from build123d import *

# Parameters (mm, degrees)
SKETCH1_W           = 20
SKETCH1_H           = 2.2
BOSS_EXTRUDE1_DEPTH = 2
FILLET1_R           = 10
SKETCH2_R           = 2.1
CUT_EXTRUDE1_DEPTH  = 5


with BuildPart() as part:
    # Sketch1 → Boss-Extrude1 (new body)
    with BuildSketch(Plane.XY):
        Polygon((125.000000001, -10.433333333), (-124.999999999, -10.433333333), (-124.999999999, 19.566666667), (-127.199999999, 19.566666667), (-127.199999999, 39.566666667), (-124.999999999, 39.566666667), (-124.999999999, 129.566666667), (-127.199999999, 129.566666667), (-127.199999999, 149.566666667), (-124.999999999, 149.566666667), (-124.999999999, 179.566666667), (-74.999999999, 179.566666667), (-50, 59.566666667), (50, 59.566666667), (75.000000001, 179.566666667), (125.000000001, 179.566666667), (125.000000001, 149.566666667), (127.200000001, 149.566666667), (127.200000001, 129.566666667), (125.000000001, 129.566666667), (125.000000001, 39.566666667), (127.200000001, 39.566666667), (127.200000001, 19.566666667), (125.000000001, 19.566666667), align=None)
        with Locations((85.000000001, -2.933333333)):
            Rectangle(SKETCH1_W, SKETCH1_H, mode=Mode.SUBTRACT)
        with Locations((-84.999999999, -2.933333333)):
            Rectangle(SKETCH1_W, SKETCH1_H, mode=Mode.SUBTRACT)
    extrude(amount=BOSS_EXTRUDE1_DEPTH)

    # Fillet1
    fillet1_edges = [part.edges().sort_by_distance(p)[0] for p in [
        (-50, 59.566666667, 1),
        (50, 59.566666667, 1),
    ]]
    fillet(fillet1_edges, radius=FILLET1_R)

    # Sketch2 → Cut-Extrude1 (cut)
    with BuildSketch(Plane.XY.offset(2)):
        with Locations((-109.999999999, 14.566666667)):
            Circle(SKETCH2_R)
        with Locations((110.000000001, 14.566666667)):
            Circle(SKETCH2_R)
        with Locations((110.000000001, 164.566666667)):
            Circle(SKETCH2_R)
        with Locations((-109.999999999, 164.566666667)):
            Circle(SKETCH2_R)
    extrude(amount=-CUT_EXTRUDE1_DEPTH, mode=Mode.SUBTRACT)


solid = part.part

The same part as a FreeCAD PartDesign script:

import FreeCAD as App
import Part
import Sketcher
from FreeCAD import Vector
Q = App.Units.Quantity


def edges_at(feature, points):
    """Names of the edges that pass closest to the given points."""
    edges = feature.Shape.Edges
    near = lambda p: min(range(len(edges)), key=lambda i: edges[i].distToShape(Part.Vertex(*p))[0])
    return sorted({f"Edge{near(p) + 1}" for p in points})

doc = App.newDocument("Part")
params = doc.addObject("Spreadsheet::Sheet", "Params")
for row, (alias, value) in enumerate([
    ("sketch1_width", "250 mm"),
    ("sketch1_width2", "50 mm"),
    ("sketch1_width3", "100 mm"),
    ("sketch1_width4", "20 mm"),
    ("sketch1_height", "30 mm"),
    ("pad1_length", "2 mm"),
    ("fillet_radius", "10 mm"),
    ("sketch2_diameter", "4.2 mm"),
    ("pocket1_length", "5 mm"),
], start=1):
    params.set(f"A{row}", alias)
    params.set(f"B{row}", "=" + value)
    params.setAlias(f"B{row}", alias)

body = doc.addObject("PartDesign::Body", "Body")

# Sketch on XY plane
sketch1 = doc.addObject("Sketcher::SketchObject", "Sketch")
body.addObject(sketch1)
sketch1.AttachmentSupport = (doc.XY_Plane, [""])
sketch1.MapMode = "FlatFace"
sketch1.addGeometry(Part.LineSegment(Vector(-125, -10.433333, 0), Vector(125, -10.433333, 0)), False)
sketch1.addGeometry(Part.LineSegment(Vector(125, -10.433333, 0), Vector(125, 19.566667, 0)), False)
sketch1.addGeometry(Part.LineSegment(Vector(125, 19.566667, 0), Vector(127.2, 19.566667, 0)), False)
sketch1.addGeometry(Part.LineSegment(Vector(127.2, 19.566667, 0), Vector(127.2, 39.566667, 0)), False)
sketch1.addGeometry(Part.LineSegment(Vector(127.2, 39.566667, 0), Vector(125, 39.566667, 0)), False)
sketch1.addGeometry(Part.LineSegment(Vector(125, 39.566667, 0), Vector(125, 129.566667, 0)), False)
sketch1.addGeometry(Part.LineSegment(Vector(125, 129.566667, 0), Vector(127.2, 129.566667, 0)), False)
sketch1.addGeometry(Part.LineSegment(Vector(127.2, 129.566667, 0), Vector(127.2, 149.566667, 0)), False)
sketch1.addGeometry(Part.LineSegment(Vector(127.2, 149.566667, 0), Vector(125, 149.566667, 0)), False)
sketch1.addGeometry(Part.LineSegment(Vector(125, 149.566667, 0), Vector(125, 179.566667, 0)), False)
sketch1.addGeometry(Part.LineSegment(Vector(125, 179.566667, 0), Vector(75, 179.566667, 0)), False)
sketch1.addGeometry(Part.LineSegment(Vector(75, 179.566667, 0), Vector(50, 59.566667, 0)), False)
sketch1.addGeometry(Part.LineSegment(Vector(50, 59.566667, 0), Vector(-50, 59.566667, 0)), False)
sketch1.addGeometry(Part.LineSegment(Vector(-50, 59.566667, 0), Vector(-75, 179.566667, 0)), False)
sketch1.addGeometry(Part.LineSegment(Vector(-75, 179.566667, 0), Vector(-125, 179.566667, 0)), False)
sketch1.addGeometry(Part.LineSegment(Vector(-125, 179.566667, 0), Vector(-125, 149.566667, 0)), False)
sketch1.addGeometry(Part.LineSegment(Vector(-125, 149.566667, 0), Vector(-127.2, 149.566667, 0)), False)
sketch1.addGeometry(Part.LineSegment(Vector(-127.2, 149.566667, 0), Vector(-127.2, 129.566667, 0)), False)
sketch1.addGeometry(Part.LineSegment(Vector(-127.2, 129.566667, 0), Vector(-125, 129.566667, 0)), False)
sketch1.addGeometry(Part.LineSegment(Vector(-125, 129.566667, 0), Vector(-125, 39.566667, 0)), False)
sketch1.addGeometry(Part.LineSegment(Vector(-125, 39.566667, 0), Vector(-127.2, 39.566667, 0)), False)
sketch1.addGeometry(Part.LineSegment(Vector(-127.2, 39.566667, 0), Vector(-127.2, 19.566667, 0)), False)
sketch1.addGeometry(Part.LineSegment(Vector(-127.2, 19.566667, 0), Vector(-125, 19.566667, 0)), False)
sketch1.addGeometry(Part.LineSegment(Vector(-125, 19.566667, 0), Vector(-125, -10.433333, 0)), False)
sketch1.addGeometry(Part.LineSegment(Vector(75, -4.033333, 0), Vector(75, -1.833333, 0)), False)
sketch1.addGeometry(Part.LineSegment(Vector(75, -1.833333, 0), Vector(95, -1.833333, 0)), False)
sketch1.addGeometry(Part.LineSegment(Vector(95, -1.833333, 0), Vector(95, -4.033333, 0)), False)
sketch1.addGeometry(Part.LineSegment(Vector(95, -4.033333, 0), Vector(75, -4.033333, 0)), False)
sketch1.addGeometry(Part.LineSegment(Vector(-95, -4.033333, 0), Vector(-95, -1.833333, 0)), False)
sketch1.addGeometry(Part.LineSegment(Vector(-95, -1.833333, 0), Vector(-75, -1.833333, 0)), False)
sketch1.addGeometry(Part.LineSegment(Vector(-75, -1.833333, 0), Vector(-75, -4.033333, 0)), False)
sketch1.addGeometry(Part.LineSegment(Vector(-75, -4.033333, 0), Vector(-95, -4.033333, 0)), False)
sketch1.addConstraint(Sketcher.Constraint("Coincident", 0, 2, 1, 1))
sketch1.addConstraint(Sketcher.Constraint("Coincident", 1, 2, 2, 1))
sketch1.addConstraint(Sketcher.Constraint("Coincident", 2, 2, 3, 1))
sketch1.addConstraint(Sketcher.Constraint("Coincident", 3, 2, 4, 1))
sketch1.addConstraint(Sketcher.Constraint("Coincident", 4, 2, 5, 1))
sketch1.addConstraint(Sketcher.Constraint("Coincident", 5, 2, 6, 1))
sketch1.addConstraint(Sketcher.Constraint("Coincident", 6, 2, 7, 1))
sketch1.addConstraint(Sketcher.Constraint("Coincident", 7, 2, 8, 1))
sketch1.addConstraint(Sketcher.Constraint("Coincident", 8, 2, 9, 1))
sketch1.addConstraint(Sketcher.Constraint("Coincident", 9, 2, 10, 1))
sketch1.addConstraint(Sketcher.Constraint("Coincident", 10, 2, 11, 1))
sketch1.addConstraint(Sketcher.Constraint("Coincident", 11, 2, 12, 1))
sketch1.addConstraint(Sketcher.Constraint("Coincident", 12, 2, 13, 1))
sketch1.addConstraint(Sketcher.Constraint("Coincident", 13, 2, 14, 1))
sketch1.addConstraint(Sketcher.Constraint("Coincident", 14, 2, 15, 1))
sketch1.addConstraint(Sketcher.Constraint("Coincident", 15, 2, 16, 1))
sketch1.addConstraint(Sketcher.Constraint("Coincident", 16, 2, 17, 1))
sketch1.addConstraint(Sketcher.Constraint("Coincident", 17, 2, 18, 1))
sketch1.addConstraint(Sketcher.Constraint("Coincident", 18, 2, 19, 1))
sketch1.addConstraint(Sketcher.Constraint("Coincident", 19, 2, 20, 1))
sketch1.addConstraint(Sketcher.Constraint("Coincident", 20, 2, 21, 1))
sketch1.addConstraint(Sketcher.Constraint("Coincident", 21, 2, 22, 1))
sketch1.addConstraint(Sketcher.Constraint("Coincident", 22, 2, 23, 1))
sketch1.addConstraint(Sketcher.Constraint("Coincident", 23, 2, 0, 1))
sketch1.addConstraint(Sketcher.Constraint("Coincident", 24, 2, 25, 1))
sketch1.addConstraint(Sketcher.Constraint("Coincident", 25, 2, 26, 1))
sketch1.addConstraint(Sketcher.Constraint("Coincident", 26, 2, 27, 1))
sketch1.addConstraint(Sketcher.Constraint("Coincident", 27, 2, 24, 1))
sketch1.addConstraint(Sketcher.Constraint("Coincident", 28, 2, 29, 1))
sketch1.addConstraint(Sketcher.Constraint("Coincident", 29, 2, 30, 1))
sketch1.addConstraint(Sketcher.Constraint("Coincident", 30, 2, 31, 1))
sketch1.addConstraint(Sketcher.Constraint("Coincident", 31, 2, 28, 1))
sketch1.addConstraint(Sketcher.Constraint("Horizontal", 0))
sketch1.addConstraint(Sketcher.Constraint("Vertical", 1))
sketch1.addConstraint(Sketcher.Constraint("Horizontal", 2))
sketch1.addConstraint(Sketcher.Constraint("Vertical", 3))
sketch1.addConstraint(Sketcher.Constraint("Horizontal", 4))
sketch1.addConstraint(Sketcher.Constraint("Vertical", 5))
sketch1.addConstraint(Sketcher.Constraint("Horizontal", 6))
sketch1.addConstraint(Sketcher.Constraint("Vertical", 7))
sketch1.addConstraint(Sketcher.Constraint("Horizontal", 8))
sketch1.addConstraint(Sketcher.Constraint("Vertical", 9))
sketch1.addConstraint(Sketcher.Constraint("Horizontal", 10))
sketch1.addConstraint(Sketcher.Constraint("Horizontal", 12))
sketch1.addConstraint(Sketcher.Constraint("Horizontal", 14))
sketch1.addConstraint(Sketcher.Constraint("Vertical", 15))
sketch1.addConstraint(Sketcher.Constraint("Horizontal", 16))
sketch1.addConstraint(Sketcher.Constraint("Vertical", 17))
sketch1.addConstraint(Sketcher.Constraint("Horizontal", 18))
sketch1.addConstraint(Sketcher.Constraint("Vertical", 19))
sketch1.addConstraint(Sketcher.Constraint("Horizontal", 20))
sketch1.addConstraint(Sketcher.Constraint("Vertical", 21))
sketch1.addConstraint(Sketcher.Constraint("Horizontal", 22))
sketch1.addConstraint(Sketcher.Constraint("Vertical", 23))
sketch1.addConstraint(Sketcher.Constraint("Vertical", 24))
sketch1.addConstraint(Sketcher.Constraint("Horizontal", 25))
sketch1.addConstraint(Sketcher.Constraint("Vertical", 26))
sketch1.addConstraint(Sketcher.Constraint("Horizontal", 27))
sketch1.addConstraint(Sketcher.Constraint("Vertical", 28))
sketch1.addConstraint(Sketcher.Constraint("Horizontal", 29))
sketch1.addConstraint(Sketcher.Constraint("Vertical", 30))
sketch1.addConstraint(Sketcher.Constraint("Horizontal", 31))
sketch1.addConstraint(Sketcher.Constraint("Symmetric", 10, 2, 13, 2, -2))
sketch1.addConstraint(Sketcher.Constraint("Symmetric", 8, 2, 15, 2, -2))
sketch1.addConstraint(Sketcher.Constraint("Symmetric", 6, 2, 17, 2, -2))
sketch1.addConstraint(Sketcher.Constraint("Symmetric", 4, 2, 19, 2, -2))
sketch1.addConstraint(Sketcher.Constraint("Symmetric", 2, 2, 21, 2, -2))
sketch1.addConstraint(Sketcher.Constraint("Symmetric", 25, 2, 28, 2, -2))
sketch1.addConstraint(Sketcher.Constraint("Symmetric", 27, 2, 30, 2, -2))
sketch1.addConstraint(Sketcher.Constraint("Vertical", 1, 2, 4, 2))
sketch1.addConstraint(Sketcher.Constraint("Vertical", 3, 2, 6, 2))
sketch1.addConstraint(Sketcher.Constraint("Vertical", 5, 2, 8, 2))
sketch1.addConstraint(Sketcher.Constraint("Vertical", 19, 2, 22, 2))
sketch1.addConstraint(Sketcher.Constraint("Vertical", 10, 2, 24, 2))
sketch1.addConstraint(Sketcher.Constraint("Equal", 31, 3))
sketch1.addConstraint(Sketcher.Constraint("Equal", 3, 7))
sketch1.addConstraint(Sketcher.Constraint("Equal", 1, 9))
sketch1.addConstraint(Sketcher.Constraint("Equal", 22, 24))
sketch1.addConstraint(Sketcher.Constraint("Equal", 11, 13))
sketch1.addConstraint(Sketcher.Constraint("DistanceX", 0, 1, 0, 2, Q("250 mm")))
sketch1.addConstraint(Sketcher.Constraint("DistanceX", 10, 2, 10, 1, Q("50 mm")))
sketch1.addConstraint(Sketcher.Constraint("DistanceX", 12, 2, 12, 1, Q("100 mm")))
sketch1.addConstraint(Sketcher.Constraint("DistanceX", 25, 1, 25, 2, Q("20 mm")))
sketch1.addConstraint(Sketcher.Constraint("DistanceY", 1, 1, 1, 2, Q("30 mm")))
sketch1.addConstraint(Sketcher.Constraint("DistanceY", 5, 1, 5, 2, Q("90 mm")))
sketch1.addConstraint(Sketcher.Constraint("DistanceX", 2, 1, 2, 2, Q("2.2 mm")))
sketch1.addConstraint(Sketcher.Constraint("DistanceY", 4, 2, 11, 2, Q("20 mm")))
sketch1.addConstraint(Sketcher.Constraint("DistanceY", 0, 2, 24, 2, Q("8.6 mm")))
sketch1.addConstraint(Sketcher.Constraint("DistanceY", 0, 2, -1, 1, Q("10.433333 mm")))
sketch1.setExpression("Constraints[79]", "Params.sketch1_width")
sketch1.setExpression("Constraints[80]", "Params.sketch1_width2")
sketch1.setExpression("Constraints[81]", "Params.sketch1_width3")
sketch1.setExpression("Constraints[82]", "Params.sketch1_width4")
sketch1.setExpression("Constraints[83]", "Params.sketch1_height")
pad1 = doc.addObject("PartDesign::Pad", "Pad")
body.addObject(pad1)
pad1.Profile = sketch1
pad1.setExpression("Length", "Params.pad1_length")
doc.recompute()

fillet = doc.addObject("PartDesign::Fillet", "Fillet")
body.addObject(fillet)
fillet.Base = (pad1, edges_at(pad1, [(-50, 59.567, 1), (50, 59.567, 1)]))
fillet.setExpression("Radius", "Params.fillet_radius")

# Sketch on XY plane
sketch2 = doc.addObject("Sketcher::SketchObject", "Sketch001")
body.addObject(sketch2)
sketch2.AttachmentSupport = (doc.XY_Plane, [""])
sketch2.MapMode = "FlatFace"
sketch2.AttachmentOffset = App.Placement(Vector(0, 0, 2), App.Rotation())
sketch2.addGeometry(Part.Circle(Vector(-110, 14.566667, 0), Vector(0, 0, 1), 2.1), False)
sketch2.addGeometry(Part.Circle(Vector(110, 14.566667, 0), Vector(0, 0, 1), 2.1), False)
sketch2.addGeometry(Part.Circle(Vector(110, 164.566667, 0), Vector(0, 0, 1), 2.1), False)
sketch2.addGeometry(Part.Circle(Vector(-110, 164.566667, 0), Vector(0, 0, 1), 2.1), False)
sketch2.addConstraint(Sketcher.Constraint("Equal", 0, 1))
sketch2.addConstraint(Sketcher.Constraint("Equal", 1, 2))
sketch2.addConstraint(Sketcher.Constraint("Equal", 2, 3))
sketch2.addConstraint(Sketcher.Constraint("Symmetric", 0, 3, 1, 3, -2))
sketch2.addConstraint(Sketcher.Constraint("Symmetric", 2, 3, 3, 3, -2))
sketch2.addConstraint(Sketcher.Constraint("Vertical", 1, 3, 2, 3))
sketch2.addConstraint(Sketcher.Constraint("Diameter", 0, Q("4.2 mm")))
sketch2.addConstraint(Sketcher.Constraint("DistanceX", 0, 3, -1, 1, Q("110 mm")))
sketch2.addConstraint(Sketcher.Constraint("DistanceY", 1, 3, 2, 3, Q("150 mm")))
sketch2.addConstraint(Sketcher.Constraint("DistanceY", -1, 1, 0, 3, Q("14.566667 mm")))
sketch2.setExpression("Constraints[6]", "Params.sketch2_diameter")
pocket1 = doc.addObject("PartDesign::Pocket", "Pocket")
body.addObject(pocket1)
pocket1.Profile = sketch2
pocket1.setExpression("Length", "Params.pocket1_length")

doc.recompute()
